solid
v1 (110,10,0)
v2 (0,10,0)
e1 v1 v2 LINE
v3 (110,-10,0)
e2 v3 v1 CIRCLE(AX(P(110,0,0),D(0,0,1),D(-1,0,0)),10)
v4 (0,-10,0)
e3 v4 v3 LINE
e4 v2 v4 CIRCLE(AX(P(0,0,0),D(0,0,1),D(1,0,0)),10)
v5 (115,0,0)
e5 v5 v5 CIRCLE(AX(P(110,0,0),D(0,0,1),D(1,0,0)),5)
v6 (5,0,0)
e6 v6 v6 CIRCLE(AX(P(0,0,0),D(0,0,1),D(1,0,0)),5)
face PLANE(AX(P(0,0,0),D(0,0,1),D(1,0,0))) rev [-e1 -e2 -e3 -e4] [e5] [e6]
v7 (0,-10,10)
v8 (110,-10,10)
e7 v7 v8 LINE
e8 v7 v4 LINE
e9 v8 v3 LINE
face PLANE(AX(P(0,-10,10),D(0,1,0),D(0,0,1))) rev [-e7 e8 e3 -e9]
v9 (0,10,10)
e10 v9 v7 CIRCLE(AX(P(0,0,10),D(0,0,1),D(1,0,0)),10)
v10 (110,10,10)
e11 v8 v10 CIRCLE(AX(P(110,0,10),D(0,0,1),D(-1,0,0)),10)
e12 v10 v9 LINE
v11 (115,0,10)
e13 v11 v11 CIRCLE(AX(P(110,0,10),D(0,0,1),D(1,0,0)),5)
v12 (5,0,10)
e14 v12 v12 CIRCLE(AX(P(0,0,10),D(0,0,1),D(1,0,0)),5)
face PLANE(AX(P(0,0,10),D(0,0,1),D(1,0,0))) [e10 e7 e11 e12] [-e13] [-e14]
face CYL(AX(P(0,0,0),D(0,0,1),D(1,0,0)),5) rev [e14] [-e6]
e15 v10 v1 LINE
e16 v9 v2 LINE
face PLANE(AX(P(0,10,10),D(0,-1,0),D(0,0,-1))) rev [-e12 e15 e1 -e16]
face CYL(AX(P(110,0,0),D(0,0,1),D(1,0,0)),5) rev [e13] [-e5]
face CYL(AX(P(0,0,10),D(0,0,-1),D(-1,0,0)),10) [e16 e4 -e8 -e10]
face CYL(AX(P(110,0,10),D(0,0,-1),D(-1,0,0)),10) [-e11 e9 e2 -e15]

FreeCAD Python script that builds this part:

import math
import FreeCAD as App
import Part
import Sketcher
from FreeCAD import Vector

doc = App.newDocument("Part")
body = doc.addObject("PartDesign::Body", "Body")

sketch1 = doc.addObject("Sketcher::SketchObject", "Sketch")
body.addObject(sketch1)
sketch1.AttachmentSupport = (doc.XY_Plane, [""])
sketch1.MapMode = "FlatFace"
sketch1.addGeometry([
    Part.LineSegment(Vector(0, -10, 0), Vector(110, -10, 0)),
    Part.ArcOfCircle(Part.Circle(Vector(110, 0, 0), Vector(0, 0, 1), 10), math.radians(-90), math.radians(90)),
    Part.LineSegment(Vector(110, 10, 0), Vector(0, 10, 0)),
    Part.ArcOfCircle(Part.Circle(Vector(0, 0, 0), Vector(0, 0, 1), 10), math.radians(90), math.radians(270)),
], False)
sketch1.addConstraint([
    Sketcher.Constraint("Tangent", 0, 2, 1, 1),
    Sketcher.Constraint("Tangent", 1, 2, 2, 1),
    Sketcher.Constraint("Tangent", 2, 2, 3, 1),
    Sketcher.Constraint("Tangent", 3, 2, 0, 1),
    Sketcher.Constraint("Horizontal", 0),
    Sketcher.Constraint("Horizontal", 2),
    Sketcher.Constraint("Coincident", 3, 3, -1, 1),
    Sketcher.Constraint("Radius", 1, 10.0),
    Sketcher.Constraint("DistanceX", 0, 1, 0, 2, 110.0),
])
pad1 = doc.addObject("PartDesign::Pad", "Pad")
body.addObject(pad1)
pad1.Profile = sketch1
pad1.Length = 10

sketch2 = doc.addObject("Sketcher::SketchObject", "Sketch001")
body.addObject(sketch2)
sketch2.AttachmentSupport = (doc.XY_Plane, [""])
sketch2.MapMode = "FlatFace"
sketch2.AttachmentOffset = App.Placement(Vector(0, 0, 10), App.Rotation())
sketch2.addGeometry(Part.Circle(Vector(0, 0, 0), Vector(0, 0, 1), 5), False)
sketch2.addConstraint([
    Sketcher.Constraint("Coincident", 0, 3, -1, 1),
    Sketcher.Constraint("Diameter", 0, 10.0),
])
pocket1 = doc.addObject("PartDesign::Pocket", "Pocket")
body.addObject(pocket1)
pocket1.Profile = sketch2
pocket1.Length = 10

sketch3 = doc.addObject("Sketcher::SketchObject", "Sketch002")
body.addObject(sketch3)
sketch3.AttachmentSupport = (doc.XY_Plane, [""])
sketch3.MapMode = "FlatFace"
sketch3.AttachmentOffset = App.Placement(Vector(0, 0, 10), App.Rotation())
sketch3.addGeometry(Part.Circle(Vector(110, 0, 0), Vector(0, 0, 1), 5), False)
sketch3.addConstraint([
    Sketcher.Constraint("PointOnObject", 0, 3, -1),
    Sketcher.Constraint("Diameter", 0, 10.0),
    Sketcher.Constraint("DistanceX", -1, 1, 0, 3, 110.0),
])
pocket2 = doc.addObject("PartDesign::Pocket", "Pocket001")
body.addObject(pocket2)
pocket2.Profile = sketch3
pocket2.Length = 10

doc.recompute()
